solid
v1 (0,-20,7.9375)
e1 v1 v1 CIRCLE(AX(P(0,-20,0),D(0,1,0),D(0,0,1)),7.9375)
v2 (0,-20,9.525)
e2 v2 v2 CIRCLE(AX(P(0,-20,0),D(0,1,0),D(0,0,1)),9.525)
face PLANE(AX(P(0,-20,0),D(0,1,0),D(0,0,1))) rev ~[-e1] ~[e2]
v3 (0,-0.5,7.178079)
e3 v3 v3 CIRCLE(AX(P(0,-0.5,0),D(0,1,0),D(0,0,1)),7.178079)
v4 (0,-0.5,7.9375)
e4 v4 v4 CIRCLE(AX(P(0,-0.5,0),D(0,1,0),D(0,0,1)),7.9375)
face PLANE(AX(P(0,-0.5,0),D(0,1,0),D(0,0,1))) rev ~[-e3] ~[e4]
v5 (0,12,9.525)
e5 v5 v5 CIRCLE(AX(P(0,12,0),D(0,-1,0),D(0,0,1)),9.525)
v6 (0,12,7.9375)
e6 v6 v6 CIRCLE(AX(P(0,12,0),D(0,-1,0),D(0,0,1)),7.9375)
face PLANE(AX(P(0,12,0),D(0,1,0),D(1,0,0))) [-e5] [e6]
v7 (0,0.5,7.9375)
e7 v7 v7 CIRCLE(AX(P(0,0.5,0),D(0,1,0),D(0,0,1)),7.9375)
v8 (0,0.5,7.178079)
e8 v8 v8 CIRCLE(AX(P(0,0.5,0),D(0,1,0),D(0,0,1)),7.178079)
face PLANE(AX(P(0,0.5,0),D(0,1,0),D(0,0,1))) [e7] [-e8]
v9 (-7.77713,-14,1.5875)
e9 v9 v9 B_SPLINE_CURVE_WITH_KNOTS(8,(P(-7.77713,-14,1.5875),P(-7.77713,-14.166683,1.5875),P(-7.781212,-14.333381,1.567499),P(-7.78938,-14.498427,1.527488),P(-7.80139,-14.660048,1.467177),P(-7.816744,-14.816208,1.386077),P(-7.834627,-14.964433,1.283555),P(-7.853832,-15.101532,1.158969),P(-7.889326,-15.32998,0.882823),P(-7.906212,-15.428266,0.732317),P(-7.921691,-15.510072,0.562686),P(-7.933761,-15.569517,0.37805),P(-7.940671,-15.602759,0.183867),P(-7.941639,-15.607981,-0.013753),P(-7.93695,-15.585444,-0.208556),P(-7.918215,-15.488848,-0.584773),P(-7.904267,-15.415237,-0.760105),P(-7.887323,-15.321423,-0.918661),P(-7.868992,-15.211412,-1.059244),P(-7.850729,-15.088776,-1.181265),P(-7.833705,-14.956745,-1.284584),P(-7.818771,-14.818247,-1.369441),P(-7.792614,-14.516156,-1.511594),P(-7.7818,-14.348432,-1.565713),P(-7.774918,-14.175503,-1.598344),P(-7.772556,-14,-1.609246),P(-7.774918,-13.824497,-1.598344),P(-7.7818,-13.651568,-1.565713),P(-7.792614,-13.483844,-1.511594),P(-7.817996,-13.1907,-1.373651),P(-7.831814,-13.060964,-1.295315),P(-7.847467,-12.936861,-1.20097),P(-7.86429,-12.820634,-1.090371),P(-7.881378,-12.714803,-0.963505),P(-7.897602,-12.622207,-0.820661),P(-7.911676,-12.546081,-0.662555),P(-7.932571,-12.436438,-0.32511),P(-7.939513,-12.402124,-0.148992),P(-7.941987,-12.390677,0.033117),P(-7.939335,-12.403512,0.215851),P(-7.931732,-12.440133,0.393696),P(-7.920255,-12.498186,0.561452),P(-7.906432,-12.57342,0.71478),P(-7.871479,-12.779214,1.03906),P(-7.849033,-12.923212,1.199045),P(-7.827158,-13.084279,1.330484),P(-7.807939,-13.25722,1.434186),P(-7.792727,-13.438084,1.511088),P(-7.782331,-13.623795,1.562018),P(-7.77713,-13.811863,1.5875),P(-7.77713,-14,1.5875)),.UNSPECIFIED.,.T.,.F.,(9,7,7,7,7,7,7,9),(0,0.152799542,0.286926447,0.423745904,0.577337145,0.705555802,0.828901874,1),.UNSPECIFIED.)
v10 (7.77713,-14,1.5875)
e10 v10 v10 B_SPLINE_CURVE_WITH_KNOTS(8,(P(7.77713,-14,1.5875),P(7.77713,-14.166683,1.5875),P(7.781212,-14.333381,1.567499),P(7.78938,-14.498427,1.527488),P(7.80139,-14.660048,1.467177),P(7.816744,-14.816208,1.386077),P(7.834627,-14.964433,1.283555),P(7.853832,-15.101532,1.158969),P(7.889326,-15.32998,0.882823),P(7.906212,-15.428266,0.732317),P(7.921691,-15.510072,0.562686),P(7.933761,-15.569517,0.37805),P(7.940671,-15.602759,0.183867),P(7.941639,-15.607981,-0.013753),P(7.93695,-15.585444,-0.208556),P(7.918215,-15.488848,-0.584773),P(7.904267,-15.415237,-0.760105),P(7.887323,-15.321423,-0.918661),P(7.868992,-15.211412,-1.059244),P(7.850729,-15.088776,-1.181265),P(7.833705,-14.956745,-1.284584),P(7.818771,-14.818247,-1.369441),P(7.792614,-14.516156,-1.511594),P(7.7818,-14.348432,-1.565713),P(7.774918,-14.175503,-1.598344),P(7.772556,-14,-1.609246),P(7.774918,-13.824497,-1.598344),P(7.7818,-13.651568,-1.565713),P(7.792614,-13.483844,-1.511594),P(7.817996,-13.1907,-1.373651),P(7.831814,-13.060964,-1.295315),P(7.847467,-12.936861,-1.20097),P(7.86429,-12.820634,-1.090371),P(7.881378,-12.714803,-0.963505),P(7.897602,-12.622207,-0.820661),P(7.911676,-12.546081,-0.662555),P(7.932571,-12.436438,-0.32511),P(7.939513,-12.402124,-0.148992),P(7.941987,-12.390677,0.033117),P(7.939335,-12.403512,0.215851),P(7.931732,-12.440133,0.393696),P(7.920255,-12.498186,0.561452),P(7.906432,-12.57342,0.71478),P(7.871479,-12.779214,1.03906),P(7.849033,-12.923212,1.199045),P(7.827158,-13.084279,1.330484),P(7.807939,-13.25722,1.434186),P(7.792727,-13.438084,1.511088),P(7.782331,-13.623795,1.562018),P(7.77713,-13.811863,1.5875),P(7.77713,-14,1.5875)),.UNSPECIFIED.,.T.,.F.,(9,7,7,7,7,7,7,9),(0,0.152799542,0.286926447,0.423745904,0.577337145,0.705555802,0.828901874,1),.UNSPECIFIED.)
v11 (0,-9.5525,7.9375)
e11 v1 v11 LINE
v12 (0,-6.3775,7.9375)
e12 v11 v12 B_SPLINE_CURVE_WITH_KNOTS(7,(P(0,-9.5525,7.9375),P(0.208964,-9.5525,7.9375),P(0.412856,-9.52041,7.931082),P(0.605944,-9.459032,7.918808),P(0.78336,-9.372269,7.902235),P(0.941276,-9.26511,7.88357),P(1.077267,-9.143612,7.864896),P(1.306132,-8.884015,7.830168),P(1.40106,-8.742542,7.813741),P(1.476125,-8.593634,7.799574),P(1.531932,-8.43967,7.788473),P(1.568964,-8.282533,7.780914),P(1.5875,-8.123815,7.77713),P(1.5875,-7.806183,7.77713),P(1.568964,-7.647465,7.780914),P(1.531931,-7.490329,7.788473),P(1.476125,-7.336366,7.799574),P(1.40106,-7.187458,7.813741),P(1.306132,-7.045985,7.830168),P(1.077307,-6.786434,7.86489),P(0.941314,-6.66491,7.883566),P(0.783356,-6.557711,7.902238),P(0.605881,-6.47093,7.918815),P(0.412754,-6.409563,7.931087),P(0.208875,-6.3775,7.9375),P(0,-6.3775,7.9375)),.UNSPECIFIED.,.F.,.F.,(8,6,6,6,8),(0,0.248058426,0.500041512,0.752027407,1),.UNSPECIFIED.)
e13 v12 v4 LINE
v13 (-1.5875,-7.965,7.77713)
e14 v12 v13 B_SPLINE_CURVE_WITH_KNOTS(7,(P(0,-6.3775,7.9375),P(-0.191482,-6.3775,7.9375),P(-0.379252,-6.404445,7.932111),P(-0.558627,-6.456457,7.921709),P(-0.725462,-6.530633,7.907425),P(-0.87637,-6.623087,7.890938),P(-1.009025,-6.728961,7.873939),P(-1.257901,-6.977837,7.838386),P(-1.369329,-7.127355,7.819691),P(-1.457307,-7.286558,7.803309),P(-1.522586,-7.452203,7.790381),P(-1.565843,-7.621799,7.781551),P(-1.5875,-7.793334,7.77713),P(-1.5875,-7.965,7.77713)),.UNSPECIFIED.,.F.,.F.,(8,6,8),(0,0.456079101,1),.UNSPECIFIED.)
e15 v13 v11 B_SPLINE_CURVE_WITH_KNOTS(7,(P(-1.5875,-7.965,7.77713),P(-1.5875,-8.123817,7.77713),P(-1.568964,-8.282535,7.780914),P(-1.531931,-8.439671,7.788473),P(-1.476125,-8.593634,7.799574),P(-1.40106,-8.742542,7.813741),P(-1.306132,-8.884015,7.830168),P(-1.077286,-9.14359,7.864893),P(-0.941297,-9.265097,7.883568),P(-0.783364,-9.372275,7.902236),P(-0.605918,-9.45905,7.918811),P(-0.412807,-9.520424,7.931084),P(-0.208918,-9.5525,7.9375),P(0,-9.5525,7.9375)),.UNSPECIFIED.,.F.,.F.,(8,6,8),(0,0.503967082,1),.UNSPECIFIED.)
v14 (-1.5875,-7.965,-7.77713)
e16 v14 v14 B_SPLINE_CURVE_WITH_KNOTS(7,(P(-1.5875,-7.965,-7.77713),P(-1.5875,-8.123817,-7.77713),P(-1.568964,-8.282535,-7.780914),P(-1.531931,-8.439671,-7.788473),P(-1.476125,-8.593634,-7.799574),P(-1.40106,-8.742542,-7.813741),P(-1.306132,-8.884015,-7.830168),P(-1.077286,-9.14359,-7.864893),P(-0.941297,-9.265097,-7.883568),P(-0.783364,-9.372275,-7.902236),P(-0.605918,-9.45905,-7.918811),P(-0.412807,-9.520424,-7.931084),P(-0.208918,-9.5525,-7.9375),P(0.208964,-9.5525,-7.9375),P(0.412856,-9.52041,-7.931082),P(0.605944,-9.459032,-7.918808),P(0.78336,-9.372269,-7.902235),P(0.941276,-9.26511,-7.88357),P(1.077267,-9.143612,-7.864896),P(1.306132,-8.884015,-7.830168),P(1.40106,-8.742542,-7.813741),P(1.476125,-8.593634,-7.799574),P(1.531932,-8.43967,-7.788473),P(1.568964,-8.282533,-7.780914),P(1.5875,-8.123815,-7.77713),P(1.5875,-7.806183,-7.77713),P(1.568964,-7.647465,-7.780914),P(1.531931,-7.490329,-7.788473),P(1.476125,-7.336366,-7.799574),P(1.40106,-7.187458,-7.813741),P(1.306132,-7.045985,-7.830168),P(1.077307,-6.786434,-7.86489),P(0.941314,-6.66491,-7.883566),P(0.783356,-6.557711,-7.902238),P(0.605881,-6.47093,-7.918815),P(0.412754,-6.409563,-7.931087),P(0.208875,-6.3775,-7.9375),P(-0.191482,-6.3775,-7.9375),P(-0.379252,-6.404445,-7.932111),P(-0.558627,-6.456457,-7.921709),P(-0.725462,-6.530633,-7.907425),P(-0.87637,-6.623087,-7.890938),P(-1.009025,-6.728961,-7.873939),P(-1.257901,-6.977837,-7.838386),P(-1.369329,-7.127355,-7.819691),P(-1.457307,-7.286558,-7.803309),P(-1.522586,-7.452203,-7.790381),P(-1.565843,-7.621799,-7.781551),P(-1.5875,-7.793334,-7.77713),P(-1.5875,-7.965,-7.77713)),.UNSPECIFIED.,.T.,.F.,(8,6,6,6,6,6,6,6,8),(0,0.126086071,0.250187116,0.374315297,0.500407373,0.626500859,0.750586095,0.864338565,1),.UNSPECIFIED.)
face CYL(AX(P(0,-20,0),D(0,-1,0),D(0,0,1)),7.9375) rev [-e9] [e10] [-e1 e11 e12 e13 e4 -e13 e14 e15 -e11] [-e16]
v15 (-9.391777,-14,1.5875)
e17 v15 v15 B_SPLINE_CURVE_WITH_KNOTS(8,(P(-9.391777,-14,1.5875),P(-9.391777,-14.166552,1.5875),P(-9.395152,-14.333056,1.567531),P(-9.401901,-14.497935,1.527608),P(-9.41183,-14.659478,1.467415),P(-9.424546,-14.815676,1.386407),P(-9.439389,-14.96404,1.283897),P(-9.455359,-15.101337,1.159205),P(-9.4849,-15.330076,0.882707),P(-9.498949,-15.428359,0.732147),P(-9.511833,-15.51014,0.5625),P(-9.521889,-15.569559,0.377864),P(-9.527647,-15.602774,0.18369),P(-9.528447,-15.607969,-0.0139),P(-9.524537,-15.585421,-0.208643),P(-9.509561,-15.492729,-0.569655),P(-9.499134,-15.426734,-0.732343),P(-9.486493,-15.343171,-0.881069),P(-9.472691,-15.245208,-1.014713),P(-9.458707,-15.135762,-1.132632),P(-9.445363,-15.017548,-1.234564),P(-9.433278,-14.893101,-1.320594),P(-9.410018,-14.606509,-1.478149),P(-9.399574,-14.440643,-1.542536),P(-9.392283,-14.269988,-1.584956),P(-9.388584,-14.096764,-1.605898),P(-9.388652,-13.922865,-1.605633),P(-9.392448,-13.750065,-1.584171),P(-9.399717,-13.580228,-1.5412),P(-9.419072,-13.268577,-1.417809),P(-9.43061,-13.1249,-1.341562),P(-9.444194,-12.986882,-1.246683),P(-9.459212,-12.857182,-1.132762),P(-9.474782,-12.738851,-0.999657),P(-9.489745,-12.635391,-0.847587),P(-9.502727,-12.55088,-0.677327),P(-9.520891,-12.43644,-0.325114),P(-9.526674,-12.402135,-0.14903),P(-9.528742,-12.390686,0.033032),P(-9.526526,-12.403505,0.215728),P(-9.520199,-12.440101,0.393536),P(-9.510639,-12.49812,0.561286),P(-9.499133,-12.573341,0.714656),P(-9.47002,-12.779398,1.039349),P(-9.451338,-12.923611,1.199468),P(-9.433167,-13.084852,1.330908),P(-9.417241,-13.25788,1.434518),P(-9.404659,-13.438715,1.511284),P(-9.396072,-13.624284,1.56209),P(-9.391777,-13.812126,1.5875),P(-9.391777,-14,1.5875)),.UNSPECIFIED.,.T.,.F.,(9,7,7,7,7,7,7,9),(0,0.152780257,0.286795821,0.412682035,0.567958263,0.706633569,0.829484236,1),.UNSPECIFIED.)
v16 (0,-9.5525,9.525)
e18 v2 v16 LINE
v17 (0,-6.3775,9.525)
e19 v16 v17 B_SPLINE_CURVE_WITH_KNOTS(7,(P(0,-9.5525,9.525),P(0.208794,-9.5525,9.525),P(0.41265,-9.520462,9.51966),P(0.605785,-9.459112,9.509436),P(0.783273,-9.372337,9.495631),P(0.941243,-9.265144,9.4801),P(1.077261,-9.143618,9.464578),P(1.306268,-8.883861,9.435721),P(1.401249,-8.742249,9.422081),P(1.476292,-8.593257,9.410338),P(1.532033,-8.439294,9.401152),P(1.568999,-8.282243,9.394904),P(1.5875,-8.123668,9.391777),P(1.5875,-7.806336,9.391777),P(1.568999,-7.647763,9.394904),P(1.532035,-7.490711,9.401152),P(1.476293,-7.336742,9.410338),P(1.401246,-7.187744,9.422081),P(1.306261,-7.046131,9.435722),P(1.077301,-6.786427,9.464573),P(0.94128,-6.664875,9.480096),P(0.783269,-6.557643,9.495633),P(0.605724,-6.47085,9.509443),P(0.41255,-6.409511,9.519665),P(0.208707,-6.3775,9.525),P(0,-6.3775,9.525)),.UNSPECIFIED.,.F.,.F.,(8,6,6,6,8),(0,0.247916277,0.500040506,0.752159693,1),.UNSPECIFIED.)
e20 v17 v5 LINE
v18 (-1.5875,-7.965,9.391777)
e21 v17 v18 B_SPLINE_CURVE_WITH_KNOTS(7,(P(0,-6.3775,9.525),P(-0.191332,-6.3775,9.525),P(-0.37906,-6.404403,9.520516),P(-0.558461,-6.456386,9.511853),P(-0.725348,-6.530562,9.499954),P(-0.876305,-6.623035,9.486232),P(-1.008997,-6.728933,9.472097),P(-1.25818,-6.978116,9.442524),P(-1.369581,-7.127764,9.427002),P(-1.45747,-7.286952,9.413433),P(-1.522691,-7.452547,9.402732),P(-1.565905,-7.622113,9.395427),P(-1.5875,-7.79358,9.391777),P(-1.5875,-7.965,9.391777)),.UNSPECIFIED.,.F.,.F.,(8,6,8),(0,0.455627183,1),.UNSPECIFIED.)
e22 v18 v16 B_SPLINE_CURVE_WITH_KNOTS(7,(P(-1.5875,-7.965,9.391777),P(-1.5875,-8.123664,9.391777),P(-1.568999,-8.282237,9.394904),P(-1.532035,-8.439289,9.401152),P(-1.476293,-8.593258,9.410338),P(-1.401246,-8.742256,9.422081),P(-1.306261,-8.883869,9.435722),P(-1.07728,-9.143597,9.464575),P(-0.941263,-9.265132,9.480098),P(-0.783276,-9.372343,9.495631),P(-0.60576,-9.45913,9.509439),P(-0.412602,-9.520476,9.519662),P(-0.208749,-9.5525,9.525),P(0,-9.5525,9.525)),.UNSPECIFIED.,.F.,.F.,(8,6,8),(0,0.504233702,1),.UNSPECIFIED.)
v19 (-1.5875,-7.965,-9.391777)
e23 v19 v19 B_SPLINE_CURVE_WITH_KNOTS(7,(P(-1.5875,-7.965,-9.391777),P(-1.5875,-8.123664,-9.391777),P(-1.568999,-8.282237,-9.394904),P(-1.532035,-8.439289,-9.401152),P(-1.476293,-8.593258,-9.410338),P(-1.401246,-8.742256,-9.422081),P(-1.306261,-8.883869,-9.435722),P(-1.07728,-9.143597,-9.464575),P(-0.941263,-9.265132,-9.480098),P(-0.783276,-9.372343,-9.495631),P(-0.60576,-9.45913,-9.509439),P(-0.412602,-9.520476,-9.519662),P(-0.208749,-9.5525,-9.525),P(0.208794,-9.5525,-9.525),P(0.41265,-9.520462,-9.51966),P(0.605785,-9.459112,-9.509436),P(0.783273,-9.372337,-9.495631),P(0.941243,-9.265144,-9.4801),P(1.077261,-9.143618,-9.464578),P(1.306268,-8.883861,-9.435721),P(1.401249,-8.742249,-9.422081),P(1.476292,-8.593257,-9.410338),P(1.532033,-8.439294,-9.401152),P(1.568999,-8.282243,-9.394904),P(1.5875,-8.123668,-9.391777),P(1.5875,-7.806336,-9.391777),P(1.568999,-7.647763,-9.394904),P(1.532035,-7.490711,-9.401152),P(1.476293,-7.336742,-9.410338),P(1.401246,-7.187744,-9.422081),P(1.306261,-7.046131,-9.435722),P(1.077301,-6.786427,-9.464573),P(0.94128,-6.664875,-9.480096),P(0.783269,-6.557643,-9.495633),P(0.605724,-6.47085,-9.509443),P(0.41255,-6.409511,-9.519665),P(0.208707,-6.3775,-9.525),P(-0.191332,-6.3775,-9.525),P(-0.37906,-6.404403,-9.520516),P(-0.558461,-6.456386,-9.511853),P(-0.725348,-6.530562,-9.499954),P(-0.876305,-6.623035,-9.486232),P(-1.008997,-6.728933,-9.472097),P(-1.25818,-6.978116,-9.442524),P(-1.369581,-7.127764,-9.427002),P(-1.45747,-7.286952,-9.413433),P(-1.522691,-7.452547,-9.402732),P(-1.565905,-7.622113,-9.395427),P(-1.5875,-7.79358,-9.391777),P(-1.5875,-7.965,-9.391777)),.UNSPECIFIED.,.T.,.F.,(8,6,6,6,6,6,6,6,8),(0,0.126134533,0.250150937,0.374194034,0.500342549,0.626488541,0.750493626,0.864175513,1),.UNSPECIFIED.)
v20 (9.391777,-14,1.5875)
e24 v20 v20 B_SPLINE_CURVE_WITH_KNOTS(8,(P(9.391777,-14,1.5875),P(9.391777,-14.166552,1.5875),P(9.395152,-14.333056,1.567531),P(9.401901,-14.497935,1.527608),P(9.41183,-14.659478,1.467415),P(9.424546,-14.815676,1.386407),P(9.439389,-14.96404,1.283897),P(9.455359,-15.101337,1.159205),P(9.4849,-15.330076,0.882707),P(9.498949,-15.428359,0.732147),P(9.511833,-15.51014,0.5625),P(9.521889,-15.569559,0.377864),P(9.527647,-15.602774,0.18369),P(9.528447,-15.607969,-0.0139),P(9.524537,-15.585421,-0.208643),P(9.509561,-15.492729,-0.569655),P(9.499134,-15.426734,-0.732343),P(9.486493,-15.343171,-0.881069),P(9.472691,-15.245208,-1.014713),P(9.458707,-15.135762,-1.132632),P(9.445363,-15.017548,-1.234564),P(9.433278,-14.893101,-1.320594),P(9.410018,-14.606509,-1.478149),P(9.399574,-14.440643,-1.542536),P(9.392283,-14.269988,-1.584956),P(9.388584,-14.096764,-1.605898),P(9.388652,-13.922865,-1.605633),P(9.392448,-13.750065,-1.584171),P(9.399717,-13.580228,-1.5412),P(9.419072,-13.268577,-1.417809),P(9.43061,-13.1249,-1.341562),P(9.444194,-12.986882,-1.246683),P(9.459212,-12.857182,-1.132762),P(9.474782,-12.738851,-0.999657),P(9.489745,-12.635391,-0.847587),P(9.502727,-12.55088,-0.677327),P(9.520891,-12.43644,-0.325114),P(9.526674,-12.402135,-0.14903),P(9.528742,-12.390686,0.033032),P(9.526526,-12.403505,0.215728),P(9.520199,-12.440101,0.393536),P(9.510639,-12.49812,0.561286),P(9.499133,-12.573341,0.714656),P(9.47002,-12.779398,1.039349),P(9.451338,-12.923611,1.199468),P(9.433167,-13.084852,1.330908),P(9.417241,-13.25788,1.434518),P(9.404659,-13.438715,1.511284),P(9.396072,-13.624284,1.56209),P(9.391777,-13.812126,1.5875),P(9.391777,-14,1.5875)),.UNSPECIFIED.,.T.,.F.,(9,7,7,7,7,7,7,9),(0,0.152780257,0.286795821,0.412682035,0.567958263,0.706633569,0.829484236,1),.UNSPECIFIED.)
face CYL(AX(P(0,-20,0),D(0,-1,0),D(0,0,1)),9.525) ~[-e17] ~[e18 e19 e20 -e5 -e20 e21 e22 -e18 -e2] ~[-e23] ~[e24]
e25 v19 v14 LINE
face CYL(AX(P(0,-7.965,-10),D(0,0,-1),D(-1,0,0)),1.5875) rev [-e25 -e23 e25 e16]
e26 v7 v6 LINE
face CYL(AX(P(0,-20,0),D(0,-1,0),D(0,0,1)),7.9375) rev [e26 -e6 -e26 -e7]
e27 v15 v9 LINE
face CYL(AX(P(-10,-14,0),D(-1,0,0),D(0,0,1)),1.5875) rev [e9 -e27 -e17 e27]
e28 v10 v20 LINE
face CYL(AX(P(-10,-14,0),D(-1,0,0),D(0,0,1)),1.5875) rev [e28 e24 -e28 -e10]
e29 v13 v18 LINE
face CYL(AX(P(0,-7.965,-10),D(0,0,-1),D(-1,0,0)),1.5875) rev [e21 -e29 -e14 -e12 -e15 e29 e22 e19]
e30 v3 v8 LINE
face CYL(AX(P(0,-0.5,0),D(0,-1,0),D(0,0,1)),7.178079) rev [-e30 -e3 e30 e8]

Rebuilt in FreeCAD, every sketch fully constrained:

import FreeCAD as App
import Part
import Sketcher
from FreeCAD import Vector


def add_polygon(sketch, points):
    """Adds a closed chain of lines whose ends are joined by coincident constraints."""
    first, n = sketch.GeometryCount, len(points)
    for a, b in zip(points, points[1:] + points[:1]):
        sketch.addGeometry(Part.LineSegment(App.Vector(*a, 0), App.Vector(*b, 0)), False)
    for i in range(n):
        sketch.addConstraint(Sketcher.Constraint("Coincident", first + i, 2, first + (i + 1) % n, 1))

doc = App.newDocument("Part")
body = doc.addObject("PartDesign::Body", "Body")

# Sketch on XZ plane
sketch1 = doc.addObject("Sketcher::SketchObject", "Sketch")
body.addObject(sketch1)
sketch1.AttachmentSupport = (doc.XZ_Plane, [""])
sketch1.MapMode = "FlatFace"
sketch1.addGeometry(Part.Circle(Vector(0, 0, 0), Vector(0, 0, 1), 9.525), False)
sketch1.addGeometry(Part.Circle(Vector(0, 0, 0), Vector(0, 0, 1), 7.9375), False)
sketch1.addConstraint(Sketcher.Constraint("Coincident", 0, 3, -1, 1))
sketch1.addConstraint(Sketcher.Constraint("Coincident", 1, 3, -1, 1))
sketch1.addConstraint(Sketcher.Constraint("Diameter", 0, 19.05))
sketch1.addConstraint(Sketcher.Constraint("Diameter", 1, 15.875))
pad1 = doc.addObject("PartDesign::Pad", "Pad")
body.addObject(pad1)
pad1.Profile = sketch1
pad1.Type = "TwoLengths"
pad1.Length = 20
pad1.Length2 = 20
pad1.Reversed = True

# Sketch on XZ plane
sketch2 = doc.addObject("Sketcher::SketchObject", "Sketch001")
body.addObject(sketch2)
sketch2.AttachmentSupport = (doc.XZ_Plane, [""])
sketch2.MapMode = "FlatFace"
sketch2.addGeometry(Part.Circle(Vector(0, 0, 0), Vector(0, 0, 1), 7.9375), False)
sketch2.addGeometry(Part.Circle(Vector(0, 0, 0), Vector(0, 0, 1), 7.178079), False)
sketch2.addConstraint(Sketcher.Constraint("Coincident", 0, 3, -1, 1))
sketch2.addConstraint(Sketcher.Constraint("Coincident", 1, 3, -1, 1))
sketch2.addConstraint(Sketcher.Constraint("Diameter", 0, 15.875))
sketch2.addConstraint(Sketcher.Constraint("Diameter", 1, 14.356158))
pad2 = doc.addObject("PartDesign::Pad", "Pad001")
body.addObject(pad2)
pad2.Profile = sketch2
pad2.Type = "TwoLengths"
pad2.Length = 0.5
pad2.Length2 = 0.5
pad2.Reversed = True

# Sketch on YZ plane
sketch3 = doc.addObject("Sketcher::SketchObject", "Sketch002")
body.addObject(sketch3)
sketch3.AttachmentSupport = (doc.YZ_Plane, [""])
sketch3.MapMode = "FlatFace"
sketch3.addGeometry(Part.Circle(Vector(-14, 0, 0), Vector(0, 0, 1), 1.5875), False)
sketch3.addConstraint(Sketcher.Constraint("PointOnObject", 0, 3, -1))
sketch3.addConstraint(Sketcher.Constraint("Diameter", 0, 3.175))
sketch3.addConstraint(Sketcher.Constraint("DistanceX", 0, 3, -1, 1, 14.0))
pocket1 = doc.addObject("PartDesign::Pocket", "Pocket")
body.addObject(pocket1)
pocket1.Profile = sketch3
pocket1.Type = "ThroughAll"
pocket1.Midplane = True

# Sketch on XY plane
sketch4 = doc.addObject("Sketcher::SketchObject", "Sketch003")
body.addObject(sketch4)
sketch4.AttachmentSupport = (doc.XY_Plane, [""])
sketch4.MapMode = "FlatFace"
sketch4.addGeometry(Part.Circle(Vector(0, -7.965, 0), Vector(0, 0, 1), 1.5875), False)
sketch4.addConstraint(Sketcher.Constraint("PointOnObject", 0, 3, -2))
sketch4.addConstraint(Sketcher.Constraint("Diameter", 0, 3.175))
sketch4.addConstraint(Sketcher.Constraint("DistanceY", 0, 3, -1, 1, 7.965))
pocket2 = doc.addObject("PartDesign::Pocket", "Pocket001")
body.addObject(pocket2)
pocket2.Profile = sketch4
pocket2.Type = "ThroughAll"
pocket2.Midplane = True

# Sketch on XZ plane
sketch5 = doc.addObject("Sketcher::SketchObject", "Sketch004")
body.addObject(sketch5)
sketch5.AttachmentSupport = (doc.XZ_Plane, [""])
sketch5.MapMode = "FlatFace"
sketch5.AttachmentOffset = App.Placement(Vector(0, 0, -20), App.Rotation())
add_polygon(sketch5, [(-13.732259, -12.133257), (-13.732259, 12.133257), (13.732259, 12.133257), (13.732259, -12.133257)])  # lines 0-3
sketch5.addConstraint(Sketcher.Constraint("Vertical", 0))
sketch5.addConstraint(Sketcher.Constraint("Horizontal", 1))
sketch5.addConstraint(Sketcher.Constraint("Vertical", 2))
sketch5.addConstraint(Sketcher.Constraint("Horizontal", 3))
sketch5.addConstraint(Sketcher.Constraint("Symmetric", 0, 2, 2, 2, -1, 1))
sketch5.addConstraint(Sketcher.Constraint("DistanceX", 1, 1, 1, 2, 27.464518))
sketch5.addConstraint(Sketcher.Constraint("DistanceY", 0, 1, 0, 2, 24.266513))
pocket3 = doc.addObject("PartDesign::Pocket", "Pocket002")
body.addObject(pocket3)
pocket3.Profile = sketch5
pocket3.Length = 8
pocket3.Reversed = True

doc.recompute()
